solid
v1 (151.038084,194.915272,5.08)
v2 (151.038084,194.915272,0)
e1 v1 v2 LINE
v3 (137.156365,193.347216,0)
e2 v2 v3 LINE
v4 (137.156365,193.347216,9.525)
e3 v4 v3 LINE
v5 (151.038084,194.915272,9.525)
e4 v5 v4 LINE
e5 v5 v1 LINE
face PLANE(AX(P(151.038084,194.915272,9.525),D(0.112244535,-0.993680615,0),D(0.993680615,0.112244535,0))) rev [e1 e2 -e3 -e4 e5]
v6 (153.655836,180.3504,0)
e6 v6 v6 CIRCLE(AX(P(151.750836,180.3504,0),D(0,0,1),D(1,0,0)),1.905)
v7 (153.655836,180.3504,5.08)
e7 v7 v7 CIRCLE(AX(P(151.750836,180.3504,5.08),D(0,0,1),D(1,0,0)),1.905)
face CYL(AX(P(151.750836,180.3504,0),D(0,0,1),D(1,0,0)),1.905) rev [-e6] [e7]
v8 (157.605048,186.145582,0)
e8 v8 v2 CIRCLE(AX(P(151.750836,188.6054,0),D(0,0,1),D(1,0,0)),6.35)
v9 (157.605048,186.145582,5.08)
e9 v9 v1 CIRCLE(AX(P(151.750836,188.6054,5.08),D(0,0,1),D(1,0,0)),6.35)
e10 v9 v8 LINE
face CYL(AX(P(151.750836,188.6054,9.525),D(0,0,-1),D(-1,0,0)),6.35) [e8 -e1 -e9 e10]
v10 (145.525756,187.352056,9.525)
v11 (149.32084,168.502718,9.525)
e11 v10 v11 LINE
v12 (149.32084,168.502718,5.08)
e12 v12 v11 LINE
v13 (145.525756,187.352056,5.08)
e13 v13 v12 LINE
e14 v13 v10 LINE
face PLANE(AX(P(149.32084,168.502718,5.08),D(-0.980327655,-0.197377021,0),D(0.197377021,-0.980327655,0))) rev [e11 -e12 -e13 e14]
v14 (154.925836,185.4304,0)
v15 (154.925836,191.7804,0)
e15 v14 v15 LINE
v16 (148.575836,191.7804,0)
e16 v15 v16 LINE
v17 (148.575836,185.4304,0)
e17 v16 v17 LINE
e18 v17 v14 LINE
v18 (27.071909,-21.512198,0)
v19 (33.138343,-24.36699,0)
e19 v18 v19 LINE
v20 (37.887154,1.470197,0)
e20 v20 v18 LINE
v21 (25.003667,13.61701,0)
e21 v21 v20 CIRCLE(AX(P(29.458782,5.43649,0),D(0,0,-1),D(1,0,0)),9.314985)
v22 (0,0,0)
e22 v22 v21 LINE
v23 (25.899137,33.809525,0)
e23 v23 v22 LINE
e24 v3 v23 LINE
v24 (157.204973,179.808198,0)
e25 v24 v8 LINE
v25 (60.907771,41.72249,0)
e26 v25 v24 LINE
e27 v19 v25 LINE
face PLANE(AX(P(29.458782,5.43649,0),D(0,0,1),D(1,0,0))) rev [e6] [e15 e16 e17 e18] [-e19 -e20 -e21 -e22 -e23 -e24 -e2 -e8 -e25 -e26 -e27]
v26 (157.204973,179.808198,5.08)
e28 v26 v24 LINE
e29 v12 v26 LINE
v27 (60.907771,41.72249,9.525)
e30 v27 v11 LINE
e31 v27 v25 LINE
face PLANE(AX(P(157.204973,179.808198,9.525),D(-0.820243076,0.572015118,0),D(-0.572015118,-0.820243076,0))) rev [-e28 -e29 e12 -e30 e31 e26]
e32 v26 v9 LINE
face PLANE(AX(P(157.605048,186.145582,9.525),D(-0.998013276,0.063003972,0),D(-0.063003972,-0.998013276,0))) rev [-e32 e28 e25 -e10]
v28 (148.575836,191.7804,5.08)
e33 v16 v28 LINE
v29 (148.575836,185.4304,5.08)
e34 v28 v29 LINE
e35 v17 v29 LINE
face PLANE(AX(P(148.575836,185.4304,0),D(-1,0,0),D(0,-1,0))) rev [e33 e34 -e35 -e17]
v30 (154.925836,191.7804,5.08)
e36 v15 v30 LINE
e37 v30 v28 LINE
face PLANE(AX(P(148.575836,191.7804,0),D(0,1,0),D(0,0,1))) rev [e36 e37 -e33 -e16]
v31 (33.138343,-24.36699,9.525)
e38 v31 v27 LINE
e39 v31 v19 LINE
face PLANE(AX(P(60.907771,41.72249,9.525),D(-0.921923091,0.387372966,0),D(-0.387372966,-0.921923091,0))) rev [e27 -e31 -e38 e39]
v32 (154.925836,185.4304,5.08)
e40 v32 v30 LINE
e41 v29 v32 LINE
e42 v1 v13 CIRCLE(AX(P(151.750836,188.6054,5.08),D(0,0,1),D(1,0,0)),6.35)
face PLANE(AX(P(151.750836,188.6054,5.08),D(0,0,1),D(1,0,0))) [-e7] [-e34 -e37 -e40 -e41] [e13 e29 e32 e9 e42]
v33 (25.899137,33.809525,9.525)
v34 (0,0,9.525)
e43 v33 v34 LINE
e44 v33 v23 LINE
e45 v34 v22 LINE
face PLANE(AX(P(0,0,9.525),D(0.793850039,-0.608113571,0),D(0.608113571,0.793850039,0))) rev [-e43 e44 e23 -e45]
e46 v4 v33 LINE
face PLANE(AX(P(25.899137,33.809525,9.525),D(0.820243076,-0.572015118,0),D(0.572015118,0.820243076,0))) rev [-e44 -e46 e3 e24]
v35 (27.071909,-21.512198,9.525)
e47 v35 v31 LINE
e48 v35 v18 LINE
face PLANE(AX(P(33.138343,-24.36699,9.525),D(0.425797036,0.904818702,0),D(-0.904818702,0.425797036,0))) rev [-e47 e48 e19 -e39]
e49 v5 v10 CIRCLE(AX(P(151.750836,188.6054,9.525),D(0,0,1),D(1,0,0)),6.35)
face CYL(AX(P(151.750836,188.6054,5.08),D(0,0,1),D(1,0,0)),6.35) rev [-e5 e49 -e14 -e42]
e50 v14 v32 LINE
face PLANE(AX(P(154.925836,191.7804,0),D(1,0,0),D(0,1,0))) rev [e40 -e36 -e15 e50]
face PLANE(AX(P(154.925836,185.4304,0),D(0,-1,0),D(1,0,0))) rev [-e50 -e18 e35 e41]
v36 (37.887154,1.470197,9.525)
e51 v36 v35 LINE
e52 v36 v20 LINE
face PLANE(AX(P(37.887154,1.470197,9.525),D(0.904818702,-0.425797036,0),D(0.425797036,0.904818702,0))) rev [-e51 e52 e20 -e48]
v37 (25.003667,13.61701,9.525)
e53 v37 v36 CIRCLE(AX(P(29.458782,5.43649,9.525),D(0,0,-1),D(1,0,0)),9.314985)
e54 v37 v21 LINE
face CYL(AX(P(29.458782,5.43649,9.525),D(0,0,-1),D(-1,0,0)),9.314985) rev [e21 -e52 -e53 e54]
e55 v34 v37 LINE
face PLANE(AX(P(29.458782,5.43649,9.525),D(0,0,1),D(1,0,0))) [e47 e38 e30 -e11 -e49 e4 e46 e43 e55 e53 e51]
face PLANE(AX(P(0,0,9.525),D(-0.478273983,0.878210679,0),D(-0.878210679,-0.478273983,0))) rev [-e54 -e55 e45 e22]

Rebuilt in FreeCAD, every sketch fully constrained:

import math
import FreeCAD as App
import Part
import Sketcher
from FreeCAD import Vector
Q = App.Units.Quantity

doc = App.newDocument("Part")
params = doc.addObject("Spreadsheet::Sheet", "Params")
for row, (alias, value) in enumerate([
    ("sketch1_radius", "0.25 in"),
    ("sketch1_length", "1 in"),
    ("sketch1_length2", "0.25 in"),
    ("sketch1_length3", "0.55 in"),
    ("pad1_length", "0.375 in"),
    ("sketch2_radius", "0.25 in"),
    ("sketch2_length", "0.25 in"),
    ("pocket1_length", "0.175 in"),
    ("sketch3_diameter", "0.15 in"),
    ("sketch3_width", "0.25 in"),
], start=1):
    params.set(f"A{row}", alias)
    params.set(f"B{row}", "=" + value)
    params.setAlias(f"B{row}", alias)

body = doc.addObject("PartDesign::Body", "Body")

# Sketch on XY plane
sketch1 = body.newObject("Sketcher::SketchObject", "Sketch")
sketch1.AttachmentSupport = (doc.getObject("XY_Plane"), [""])
sketch1.MapMode = "FlatFace"
sketch1.addGeometry([
    Part.LineSegment(Vector(38, 1, 0), Vector(27, -22, 0)),  # 0
    Part.LineSegment(Vector(27, -22, 0), Vector(33, -24, 0)),  # 1
    Part.LineSegment(Vector(33, -24, 0), Vector(61, 42, 0)),  # 2
    Part.LineSegment(Vector(61, 42, 0), Vector(157, 180, 0)),  # 3
    Part.LineSegment(Vector(157, 180, 0), Vector(158, 186, 0)),  # 4
    Part.ArcOfCircle(Part.Circle(Vector(152, 189, 0), Vector(0, 0, 1), 6), math.radians(-23), math.radians(96)),  # 5
    Part.LineSegment(Vector(151, 195, 0), Vector(137, 193, 0)),  # 6
    Part.LineSegment(Vector(137, 193, 0), Vector(26, 34, 0)),  # 7
    Part.LineSegment(Vector(26, 34, 0), Vector(0, 0, 0)),  # 8
    Part.LineSegment(Vector(0, 0, 0), Vector(25, 14, 0)),  # 9
    Part.ArcOfCircle(Part.Circle(Vector(29, 5, 0), Vector(0, 0, 1), 9), math.radians(-25), math.radians(119)),  # 10
], False)
sketch1.addConstraint([
    Sketcher.Constraint("Coincident", 0, 2, 1, 1),
    Sketcher.Constraint("Coincident", 1, 2, 2, 1),
    Sketcher.Constraint("Coincident", 2, 2, 3, 1),
    Sketcher.Constraint("Coincident", 3, 2, 4, 1),
    Sketcher.Constraint("Coincident", 4, 2, 5, 1),
    Sketcher.Constraint("Tangent", 5, 2, 6, 1),
    Sketcher.Constraint("Coincident", 6, 2, 7, 1),
    Sketcher.Constraint("Coincident", 7, 2, 8, 1),
    Sketcher.Constraint("Coincident", 8, 2, 9, 1),
    Sketcher.Constraint("Tangent", 9, 2, 10, 2),
    Sketcher.Constraint("Tangent", 10, 1, 0, 1),
    Sketcher.Constraint("Coincident", 8, 2, -1, 1),
    Sketcher.Constraint("Perpendicular", 0, 1),
    Sketcher.Constraint("Parallel", 3, 7),
    Sketcher.Constraint("Radius", 5, Q("0.25 in")),
    Sketcher.Constraint("Distance", 0, Q("1 in")),
    Sketcher.Constraint("Distance", 4, Q("0.25 in")),
    Sketcher.Constraint("Distance", 6, Q("0.55 in")),
    Sketcher.Constraint("DistanceY", 0, 2, 3, 2, Q("7.9259998 in")),
    Sketcher.Constraint("Distance", 7, Q("7.6575002 in")),
    Sketcher.Constraint("Radius", 10, Q("9.314985 mm")),
    Sketcher.Constraint("Distance", 3, Q("168.347301 mm")),
    Sketcher.Constraint("DistanceY", -1, 1, 5, 3, Q("188.6054 mm")),
    Sketcher.Constraint("DistanceY", 0, 2, 5, 3, Q("210.117598 mm")),
    Sketcher.Constraint("DistanceY", 10, 3, 2, 2, Q("36.285999 mm")),
    Sketcher.Constraint("DistanceX", 2, 2, 3, 2, Q("96.297201 mm")),
    Sketcher.Constraint("DistanceY", 1, 2, 9, 2, Q("37.983999 mm")),
    Sketcher.Constraint("Distance", 8, Q("42.589309 mm")),
    Sketcher.Constraint("Distance", 9, Q("28.471148 mm")),
    Sketcher.Constraint("DistanceX", -1, 1, 2, 2, Q("60.907771 mm")),
    Sketcher.Constraint("DistanceX", -1, 1, 4, 2, Q("157.605048 mm")),
])
sketch1.setExpression("Constraints[14]", "Params.sketch1_radius")
sketch1.setExpression("Constraints[15]", "Params.sketch1_length")
sketch1.setExpression("Constraints[16]", "Params.sketch1_length2")
sketch1.setExpression("Constraints[17]", "Params.sketch1_length3")
pad1 = body.newObject("PartDesign::Pad", "Pad")
pad1.Profile = sketch1
pad1.setExpression("Length", "Params.pad1_length")

# Sketch on XY plane
sketch2 = body.newObject("Sketcher::SketchObject", "Sketch001")
sketch2.AttachmentSupport = (doc.getObject("XY_Plane"), [""])
sketch2.MapMode = "FlatFace"
sketch2.AttachmentOffset = App.Placement(Vector(0, 0, 0.2 * 25.4), App.Rotation())
sketch2.addGeometry([
    Part.LineSegment(Vector(145.525756, 187.352056, 0), Vector(149.32084, 168.502718, 0)),  # 0
    Part.LineSegment(Vector(149.32084, 168.502718, 0), Vector(157.204973, 179.808198, 0)),  # 1
    Part.LineSegment(Vector(157.204973, 179.808198, 0), Vector(157.605048, 186.145582, 0)),  # 2
    Part.ArcOfCircle(Part.Circle(Vector(151.750836, 188.6054, 0), Vector(0, 0, 1), 6.35), math.radians(-22.791136), math.radians(96.444719)),  # 3
    Part.ArcOfCircle(Part.Circle(Vector(151.750836, 188.6054, 0), Vector(0, 0, 1), 6.35), math.radians(96.444719), math.radians(191.383616)),  # 4
], False)
sketch2.addConstraint([
    Sketcher.Constraint("Coincident", 0, 2, 1, 1),
    Sketcher.Constraint("Coincident", 1, 2, 2, 1),
    Sketcher.Constraint("Coincident", 2, 2, 3, 1),
    Sketcher.Constraint("Tangent", 3, 2, 4, 1),
    Sketcher.Constraint("Tangent", 4, 2, 0, 1),
    Sketcher.Constraint("Equal", 3, 4),
    Sketcher.Constraint("Radius", 3, Q("0.25 in")),
    Sketcher.Constraint("Distance", 2, Q("0.25 in")),
    Sketcher.Constraint("DistanceY", -1, 1, 3, 3, Q("188.6054 mm")),
    Sketcher.Constraint("Distance", 0, Q("19.22759 mm")),
    Sketcher.Constraint("DistanceX", -1, 1, 0, 2, Q("149.32084 mm")),
    Sketcher.Constraint("DistanceY", -1, 1, 0, 2, Q("168.502718 mm")),
    Sketcher.Constraint("DistanceX", -1, 1, 2, 2, Q("157.605048 mm")),
    Sketcher.Constraint("DistanceY", 0, 2, 1, 2, Q("11.305479 mm")),
    Sketcher.Constraint("DistanceY", 3, 3, 3, 2, Q("6.309872 mm")),
])
sketch2.setExpression("Constraints[6]", "Params.sketch2_radius")
sketch2.setExpression("Constraints[7]", "Params.sketch2_length")
pocket1 = body.newObject("PartDesign::Pocket", "Pocket")
pocket1.Profile = sketch2
pocket1.setExpression("Length", "Params.pocket1_length")
pocket1.Reversed = True

# Sketch on XY plane
sketch3 = body.newObject("Sketcher::SketchObject", "Sketch002")
sketch3.AttachmentSupport = (doc.getObject("XY_Plane"), [""])
sketch3.MapMode = "FlatFace"
sketch3.AttachmentOffset = App.Placement(Vector(0, 0, 0.2 * 25.4), App.Rotation())
sketch3.addGeometry([
    Part.Circle(Vector(151.8, 180.4, 0), Vector(0, 0, 1), 1.9),  # 0
    Part.LineSegment(Vector(148.6, 191.8, 0), Vector(148.6, 185.4, 0)),  # 1
    Part.LineSegment(Vector(148.6, 185.4, 0), Vector(154.9, 185.4, 0)),  # 2
    Part.LineSegment(Vector(154.9, 185.4, 0), Vector(154.9, 191.8, 0)),  # 3
    Part.LineSegment(Vector(154.9, 191.8, 0), Vector(148.6, 191.8, 0)),  # 4
], False)
sketch3.addConstraint([
    Sketcher.Constraint("Coincident", 1, 2, 2, 1),
    Sketcher.Constraint("Coincident", 2, 2, 3, 1),
    Sketcher.Constraint("Coincident", 3, 2, 4, 1),
    Sketcher.Constraint("Coincident", 4, 2, 1, 1),
    Sketcher.Constraint("Vertical", 1),
    Sketcher.Constraint("Horizontal", 2),
    Sketcher.Constraint("Vertical", 3),
    Sketcher.Constraint("Horizontal", 4),
    Sketcher.Constraint("Equal", 4, 1),
    Sketcher.Constraint("Diameter", 0, Q("0.15 in")),
    Sketcher.Constraint("DistanceX", 2, 1, 2, 2, Q("0.25 in")),
    Sketcher.Constraint("DistanceY", 0, 3, 1, 2, Q("0.2 in")),
    Sketcher.Constraint("DistanceX", 1, 2, 0, 3, Q("0.125 in")),
    Sketcher.Constraint("DistanceY", -1, 1, 0, 3, Q("180.3504 mm")),
    Sketcher.Constraint("DistanceX", -1, 1, 0, 3, Q("151.750836 mm")),
])
sketch3.setExpression("Constraints[9]", "Params.sketch3_diameter")
sketch3.setExpression("Constraints[10]", "Params.sketch3_width")
pocket2 = body.newObject("PartDesign::Pocket", "Pocket001")
pocket2.Profile = sketch3
pocket2.Type = "ThroughAll"

doc.recompute()
